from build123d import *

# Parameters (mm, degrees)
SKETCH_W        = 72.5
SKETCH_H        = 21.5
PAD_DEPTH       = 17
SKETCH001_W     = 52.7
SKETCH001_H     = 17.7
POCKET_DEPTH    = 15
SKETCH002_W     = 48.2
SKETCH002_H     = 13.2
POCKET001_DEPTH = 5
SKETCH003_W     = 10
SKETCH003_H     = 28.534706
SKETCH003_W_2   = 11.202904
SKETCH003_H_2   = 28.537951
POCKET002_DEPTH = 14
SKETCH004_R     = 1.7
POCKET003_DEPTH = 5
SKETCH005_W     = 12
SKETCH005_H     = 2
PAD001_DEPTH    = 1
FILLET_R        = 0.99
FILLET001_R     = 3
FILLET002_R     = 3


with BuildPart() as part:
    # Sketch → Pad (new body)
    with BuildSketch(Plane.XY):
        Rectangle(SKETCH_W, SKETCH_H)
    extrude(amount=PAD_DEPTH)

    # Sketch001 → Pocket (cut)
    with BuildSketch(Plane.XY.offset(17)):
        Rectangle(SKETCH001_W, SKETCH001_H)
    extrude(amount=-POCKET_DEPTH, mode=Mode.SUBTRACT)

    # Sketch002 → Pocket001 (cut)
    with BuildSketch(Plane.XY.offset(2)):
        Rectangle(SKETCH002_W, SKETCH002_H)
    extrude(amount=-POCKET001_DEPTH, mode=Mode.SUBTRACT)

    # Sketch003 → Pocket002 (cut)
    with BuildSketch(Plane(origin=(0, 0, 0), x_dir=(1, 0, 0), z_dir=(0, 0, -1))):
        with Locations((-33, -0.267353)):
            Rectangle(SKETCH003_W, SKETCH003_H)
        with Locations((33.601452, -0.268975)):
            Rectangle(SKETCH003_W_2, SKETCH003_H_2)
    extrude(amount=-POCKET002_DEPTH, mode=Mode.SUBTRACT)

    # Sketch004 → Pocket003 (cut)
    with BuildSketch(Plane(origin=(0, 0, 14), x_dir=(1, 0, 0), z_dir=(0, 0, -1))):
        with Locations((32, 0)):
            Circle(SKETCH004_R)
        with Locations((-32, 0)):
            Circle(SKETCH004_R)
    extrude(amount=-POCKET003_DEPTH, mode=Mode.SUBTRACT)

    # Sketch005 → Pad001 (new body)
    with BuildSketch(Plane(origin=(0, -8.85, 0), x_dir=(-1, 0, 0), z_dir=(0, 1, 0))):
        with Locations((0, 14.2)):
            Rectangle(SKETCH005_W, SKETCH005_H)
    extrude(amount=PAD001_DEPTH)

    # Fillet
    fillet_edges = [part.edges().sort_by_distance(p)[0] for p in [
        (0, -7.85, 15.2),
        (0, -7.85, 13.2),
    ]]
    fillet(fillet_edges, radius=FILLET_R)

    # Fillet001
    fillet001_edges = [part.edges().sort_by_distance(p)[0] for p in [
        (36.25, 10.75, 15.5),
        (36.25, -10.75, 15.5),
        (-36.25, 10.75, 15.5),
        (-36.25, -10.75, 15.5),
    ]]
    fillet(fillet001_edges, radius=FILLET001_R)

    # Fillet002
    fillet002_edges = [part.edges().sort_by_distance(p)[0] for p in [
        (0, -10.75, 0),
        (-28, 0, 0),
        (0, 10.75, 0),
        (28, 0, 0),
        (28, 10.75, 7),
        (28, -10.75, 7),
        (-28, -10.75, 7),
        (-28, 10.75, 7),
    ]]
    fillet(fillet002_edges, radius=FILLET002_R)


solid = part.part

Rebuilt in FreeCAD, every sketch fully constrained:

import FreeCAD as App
import Part
import Sketcher


def edges_at(feature, points):
    """Names of the edges that pass closest to the given points."""
    edges = feature.Shape.Edges
    near = lambda p: min(range(len(edges)), key=lambda i: edges[i].distToShape(Part.Vertex(*p))[0])
    return sorted({f"Edge{near(p) + 1}" for p in points})

doc = App.newDocument("Part")
body = doc.addObject("PartDesign::Body", "Body")

# Sketch on XY plane
sketch1 = body.newObject("Sketcher::SketchObject", "Sketch")
sketch1.AttachmentSupport = (doc.getObject("XY_Plane"), [""])
sketch1.MapMode = "FlatFace"
sketch1.addGeometry([
    Part.LineSegment(App.Vector(-36, 11, 0), App.Vector(-36, -11, 0)),
    Part.LineSegment(App.Vector(-36, -11, 0), App.Vector(36, -11, 0)),
    Part.LineSegment(App.Vector(36, -11, 0), App.Vector(36, 11, 0)),
    Part.LineSegment(App.Vector(36, 11, 0), App.Vector(-36, 11, 0)),
], False)
sketch1.addConstraint([
    Sketcher.Constraint("Coincident", 0, 2, 1, 1),
    Sketcher.Constraint("Coincident", 1, 2, 2, 1),
    Sketcher.Constraint("Coincident", 2, 2, 3, 1),
    Sketcher.Constraint("Coincident", 3, 2, 0, 1),
    Sketcher.Constraint("Vertical", 0),
    Sketcher.Constraint("Horizontal", 1),
    Sketcher.Constraint("Vertical", 2),
    Sketcher.Constraint("Horizontal", 3),
    Sketcher.Constraint("Symmetric", 0, 2, 2, 2, -1, 1),
    Sketcher.Constraint("DistanceX", 1, 1, 1, 2, 72.5),
    Sketcher.Constraint("DistanceY", 0, 2, 0, 1, 21.5),
])
pad1 = body.newObject("PartDesign::Pad", "Pad")
pad1.Profile = sketch1
pad1.Length = 17

# Sketch on XY plane
sketch2 = body.newObject("Sketcher::SketchObject", "Sketch001")
sketch2.AttachmentSupport = (doc.getObject("XY_Plane"), [""])
sketch2.MapMode = "FlatFace"
sketch2.AttachmentOffset = App.Placement(App.Vector(0, 0, 17), App.Rotation())
sketch2.addGeometry([
    Part.LineSegment(App.Vector(-26, 9, 0), App.Vector(-26, -9, 0)),
    Part.LineSegment(App.Vector(-26, -9, 0), App.Vector(26, -9, 0)),
    Part.LineSegment(App.Vector(26, -9, 0), App.Vector(26, 9, 0)),
    Part.LineSegment(App.Vector(26, 9, 0), App.Vector(-26, 9, 0)),
], False)
sketch2.addConstraint([
    Sketcher.Constraint("Coincident", 0, 2, 1, 1),
    Sketcher.Constraint("Coincident", 1, 2, 2, 1),
    Sketcher.Constraint("Coincident", 2, 2, 3, 1),
    Sketcher.Constraint("Coincident", 3, 2, 0, 1),
    Sketcher.Constraint("Vertical", 0),
    Sketcher.Constraint("Horizontal", 1),
    Sketcher.Constraint("Vertical", 2),
    Sketcher.Constraint("Horizontal", 3),
    Sketcher.Constraint("Symmetric", 0, 2, 2, 2, -1, 1),
    Sketcher.Constraint("DistanceX", 1, 1, 1, 2, 52.7),
    Sketcher.Constraint("DistanceY", 0, 2, 0, 1, 17.7),
])
pocket1 = body.newObject("PartDesign::Pocket", "Pocket")
pocket1.Profile = sketch2
pocket1.Length = 15

# Sketch on XY plane
sketch3 = body.newObject("Sketcher::SketchObject", "Sketch002")
sketch3.AttachmentSupport = (doc.getObject("XY_Plane"), [""])
sketch3.MapMode = "FlatFace"
sketch3.AttachmentOffset = App.Placement(App.Vector(0, 0, 2), App.Rotation())
sketch3.addGeometry([
    Part.LineSegment(App.Vector(-24, 7, 0), App.Vector(-24, -7, 0)),
    Part.LineSegment(App.Vector(-24, -7, 0), App.Vector(24, -7, 0)),
    Part.LineSegment(App.Vector(24, -7, 0), App.Vector(24, 7, 0)),
    Part.LineSegment(App.Vector(24, 7, 0), App.Vector(-24, 7, 0)),
], False)
sketch3.addConstraint([
    Sketcher.Constraint("Coincident", 0, 2, 1, 1),
    Sketcher.Constraint("Coincident", 1, 2, 2, 1),
    Sketcher.Constraint("Coincident", 2, 2, 3, 1),
    Sketcher.Constraint("Coincident", 3, 2, 0, 1),
    Sketcher.Constraint("Vertical", 0),
    Sketcher.Constraint("Horizontal", 1),
    Sketcher.Constraint("Vertical", 2),
    Sketcher.Constraint("Horizontal", 3),
    Sketcher.Constraint("Symmetric", 0, 2, 2, 2, -1, 1),
    Sketcher.Constraint("DistanceX", 1, 1, 1, 2, 48.2),
    Sketcher.Constraint("DistanceY", 0, 2, 0, 1, 13.2),
])
pocket2 = body.newObject("PartDesign::Pocket", "Pocket001")
pocket2.Profile = sketch3
pocket2.Length = 5

# Sketch on XY plane
sketch4 = body.newObject("Sketcher::SketchObject", "Sketch003")
sketch4.AttachmentSupport = (doc.getObject("XY_Plane"), [""])
sketch4.MapMode = "FlatFace"
sketch4.addGeometry([
    Part.LineSegment(App.Vector(-38, -14, 0), App.Vector(-38, 15, 0)),  # 0
    Part.LineSegment(App.Vector(-38, 15, 0), App.Vector(-28, 15, 0)),  # 1
    Part.LineSegment(App.Vector(-28, 15, 0), App.Vector(-28, -14, 0)),  # 2
    Part.LineSegment(App.Vector(-28, -14, 0), App.Vector(-38, -14, 0)),  # 3
    Part.LineSegment(App.Vector(28, -14, 0), App.Vector(28, 15, 0)),  # 4
    Part.LineSegment(App.Vector(28, 15, 0), App.Vector(39, 15, 0)),  # 5
    Part.LineSegment(App.Vector(39, 15, 0), App.Vector(39, -14, 0)),  # 6
    Part.LineSegment(App.Vector(39, -14, 0), App.Vector(28, -14, 0)),  # 7
], False)
sketch4.addConstraint([
    Sketcher.Constraint("Coincident", 0, 2, 1, 1),
    Sketcher.Constraint("Coincident", 1, 2, 2, 1),
    Sketcher.Constraint("Coincident", 2, 2, 3, 1),
    Sketcher.Constraint("Coincident", 3, 2, 0, 1),
    Sketcher.Constraint("Coincident", 4, 2, 5, 1),
    Sketcher.Constraint("Coincident", 5, 2, 6, 1),
    Sketcher.Constraint("Coincident", 6, 2, 7, 1),
    Sketcher.Constraint("Coincident", 7, 2, 4, 1),
    Sketcher.Constraint("Vertical", 0),
    Sketcher.Constraint("Horizontal", 1),
    Sketcher.Constraint("Vertical", 2),
    Sketcher.Constraint("Horizontal", 3),
    Sketcher.Constraint("Vertical", 4),
    Sketcher.Constraint("Horizontal", 5),
    Sketcher.Constraint("Vertical", 6),
    Sketcher.Constraint("Horizontal", 7),
    Sketcher.Constraint("Symmetric", 2, 2, 7, 2, -2),
    Sketcher.Constraint("DistanceX", 1, 1, 1, 2, 10.0),
    Sketcher.Constraint("DistanceX", 0, 2, -1, 1, 38.0),
    Sketcher.Constraint("DistanceY", 2, 2, -1, 1, 14.0),
    Sketcher.Constraint("DistanceY", 4, 1, 4, 2, 28.537951),
    Sketcher.Constraint("DistanceX", 5, 1, 5, 2, 11.202904),
    Sketcher.Constraint("DistanceY", 0, 1, 0, 2, 28.534706),
])
pocket3 = body.newObject("PartDesign::Pocket", "Pocket002")
pocket3.Profile = sketch4
pocket3.Length = 14
pocket3.Reversed = True

# Sketch on XY plane
sketch5 = body.newObject("Sketcher::SketchObject", "Sketch004")
sketch5.AttachmentSupport = (doc.getObject("XY_Plane"), [""])
sketch5.MapMode = "FlatFace"
sketch5.AttachmentOffset = App.Placement(App.Vector(0, 0, 14), App.Rotation())
sketch5.addGeometry([
    Part.Circle(App.Vector(32, 0, 0), App.Vector(0, 0, 1), 1.7),
    Part.Circle(App.Vector(-32, 0, 0), App.Vector(0, 0, 1), 1.7),
], False)
sketch5.addConstraint([
    Sketcher.Constraint("Equal", 0, 1),
    Sketcher.Constraint("Symmetric", 0, 3, 1, 3, -1, 1),
    Sketcher.Constraint("PointOnObject", 0, 3, -1),
    Sketcher.Constraint("Diameter", 0, 3.4),
    Sketcher.Constraint("DistanceX", -1, 1, 0, 3, 32.0),
])
pocket4 = body.newObject("PartDesign::Pocket", "Pocket003")
pocket4.Profile = sketch5
pocket4.Length = 5
pocket4.Reversed = True

# Sketch on XZ plane
sketch6 = body.newObject("Sketcher::SketchObject", "Sketch005")
sketch6.AttachmentSupport = (doc.getObject("XZ_Plane"), [""])
sketch6.MapMode = "FlatFace"
sketch6.AttachmentOffset = App.Placement(App.Vector(0, 0, 8.85), App.Rotation())
sketch6.addGeometry([
    Part.LineSegment(App.Vector(6, 15.2, 0), App.Vector(6, 13.2, 0)),
    Part.LineSegment(App.Vector(6, 13.2, 0), App.Vector(-6, 13.2, 0)),
    Part.LineSegment(App.Vector(-6, 13.2, 0), App.Vector(-6, 15.2, 0)),
    Part.LineSegment(App.Vector(-6, 15.2, 0), App.Vector(6, 15.2, 0)),
], False)
sketch6.addConstraint([
    Sketcher.Constraint("Coincident", 0, 2, 1, 1),
    Sketcher.Constraint("Coincident", 1, 2, 2, 1),
    Sketcher.Constraint("Coincident", 2, 2, 3, 1),
    Sketcher.Constraint("Coincident", 3, 2, 0, 1),
    Sketcher.Constraint("Vertical", 0),
    Sketcher.Constraint("Horizontal", 1),
    Sketcher.Constraint("Vertical", 2),
    Sketcher.Constraint("Horizontal", 3),
    Sketcher.Constraint("DistanceX", 1, 2, 1, 1, 12.0),
    Sketcher.Constraint("DistanceY", 0, 2, 0, 1, 2.0),
    Sketcher.Constraint("DistanceX", -1, 1, 0, 2, 6.0),
    Sketcher.Constraint("DistanceY", -1, 1, 0, 2, 13.2),
])
pad2 = body.newObject("PartDesign::Pad", "Pad001")
pad2.Profile = sketch6
pad2.Length = 1
pad2.Reversed = True
doc.recompute()

fillet = body.newObject("PartDesign::Fillet", "Fillet")
fillet.Base = (pad2, edges_at(pad2, [(0, -7.85, 15.2), (0, -7.85, 13.2)]))
fillet.Radius = 0.99
doc.recompute()

fillet2 = body.newObject("PartDesign::Fillet", "Fillet001")
fillet2.Base = (fillet, edges_at(fillet, [
    (36.25, 10.75, 15.5),
    (36.25, -10.75, 15.5),
    (-36.25, 10.75, 15.5),
    (-36.25, -10.75, 15.5),
]))
fillet2.Radius = 3
doc.recompute()

fillet3 = body.newObject("PartDesign::Fillet", "Fillet002")
fillet3.Base = (fillet2, edges_at(fillet2, [
    (0, -10.75, 0),
    (-28, 0, 0),
    (0, 10.75, 0),
    (28, 0, 0),
    (28, 10.75, 7),
    (28, -10.75, 7),
    (-28, -10.75, 7),
    (-28, 10.75, 7),
]))
fillet3.Radius = 3

doc.recompute()
